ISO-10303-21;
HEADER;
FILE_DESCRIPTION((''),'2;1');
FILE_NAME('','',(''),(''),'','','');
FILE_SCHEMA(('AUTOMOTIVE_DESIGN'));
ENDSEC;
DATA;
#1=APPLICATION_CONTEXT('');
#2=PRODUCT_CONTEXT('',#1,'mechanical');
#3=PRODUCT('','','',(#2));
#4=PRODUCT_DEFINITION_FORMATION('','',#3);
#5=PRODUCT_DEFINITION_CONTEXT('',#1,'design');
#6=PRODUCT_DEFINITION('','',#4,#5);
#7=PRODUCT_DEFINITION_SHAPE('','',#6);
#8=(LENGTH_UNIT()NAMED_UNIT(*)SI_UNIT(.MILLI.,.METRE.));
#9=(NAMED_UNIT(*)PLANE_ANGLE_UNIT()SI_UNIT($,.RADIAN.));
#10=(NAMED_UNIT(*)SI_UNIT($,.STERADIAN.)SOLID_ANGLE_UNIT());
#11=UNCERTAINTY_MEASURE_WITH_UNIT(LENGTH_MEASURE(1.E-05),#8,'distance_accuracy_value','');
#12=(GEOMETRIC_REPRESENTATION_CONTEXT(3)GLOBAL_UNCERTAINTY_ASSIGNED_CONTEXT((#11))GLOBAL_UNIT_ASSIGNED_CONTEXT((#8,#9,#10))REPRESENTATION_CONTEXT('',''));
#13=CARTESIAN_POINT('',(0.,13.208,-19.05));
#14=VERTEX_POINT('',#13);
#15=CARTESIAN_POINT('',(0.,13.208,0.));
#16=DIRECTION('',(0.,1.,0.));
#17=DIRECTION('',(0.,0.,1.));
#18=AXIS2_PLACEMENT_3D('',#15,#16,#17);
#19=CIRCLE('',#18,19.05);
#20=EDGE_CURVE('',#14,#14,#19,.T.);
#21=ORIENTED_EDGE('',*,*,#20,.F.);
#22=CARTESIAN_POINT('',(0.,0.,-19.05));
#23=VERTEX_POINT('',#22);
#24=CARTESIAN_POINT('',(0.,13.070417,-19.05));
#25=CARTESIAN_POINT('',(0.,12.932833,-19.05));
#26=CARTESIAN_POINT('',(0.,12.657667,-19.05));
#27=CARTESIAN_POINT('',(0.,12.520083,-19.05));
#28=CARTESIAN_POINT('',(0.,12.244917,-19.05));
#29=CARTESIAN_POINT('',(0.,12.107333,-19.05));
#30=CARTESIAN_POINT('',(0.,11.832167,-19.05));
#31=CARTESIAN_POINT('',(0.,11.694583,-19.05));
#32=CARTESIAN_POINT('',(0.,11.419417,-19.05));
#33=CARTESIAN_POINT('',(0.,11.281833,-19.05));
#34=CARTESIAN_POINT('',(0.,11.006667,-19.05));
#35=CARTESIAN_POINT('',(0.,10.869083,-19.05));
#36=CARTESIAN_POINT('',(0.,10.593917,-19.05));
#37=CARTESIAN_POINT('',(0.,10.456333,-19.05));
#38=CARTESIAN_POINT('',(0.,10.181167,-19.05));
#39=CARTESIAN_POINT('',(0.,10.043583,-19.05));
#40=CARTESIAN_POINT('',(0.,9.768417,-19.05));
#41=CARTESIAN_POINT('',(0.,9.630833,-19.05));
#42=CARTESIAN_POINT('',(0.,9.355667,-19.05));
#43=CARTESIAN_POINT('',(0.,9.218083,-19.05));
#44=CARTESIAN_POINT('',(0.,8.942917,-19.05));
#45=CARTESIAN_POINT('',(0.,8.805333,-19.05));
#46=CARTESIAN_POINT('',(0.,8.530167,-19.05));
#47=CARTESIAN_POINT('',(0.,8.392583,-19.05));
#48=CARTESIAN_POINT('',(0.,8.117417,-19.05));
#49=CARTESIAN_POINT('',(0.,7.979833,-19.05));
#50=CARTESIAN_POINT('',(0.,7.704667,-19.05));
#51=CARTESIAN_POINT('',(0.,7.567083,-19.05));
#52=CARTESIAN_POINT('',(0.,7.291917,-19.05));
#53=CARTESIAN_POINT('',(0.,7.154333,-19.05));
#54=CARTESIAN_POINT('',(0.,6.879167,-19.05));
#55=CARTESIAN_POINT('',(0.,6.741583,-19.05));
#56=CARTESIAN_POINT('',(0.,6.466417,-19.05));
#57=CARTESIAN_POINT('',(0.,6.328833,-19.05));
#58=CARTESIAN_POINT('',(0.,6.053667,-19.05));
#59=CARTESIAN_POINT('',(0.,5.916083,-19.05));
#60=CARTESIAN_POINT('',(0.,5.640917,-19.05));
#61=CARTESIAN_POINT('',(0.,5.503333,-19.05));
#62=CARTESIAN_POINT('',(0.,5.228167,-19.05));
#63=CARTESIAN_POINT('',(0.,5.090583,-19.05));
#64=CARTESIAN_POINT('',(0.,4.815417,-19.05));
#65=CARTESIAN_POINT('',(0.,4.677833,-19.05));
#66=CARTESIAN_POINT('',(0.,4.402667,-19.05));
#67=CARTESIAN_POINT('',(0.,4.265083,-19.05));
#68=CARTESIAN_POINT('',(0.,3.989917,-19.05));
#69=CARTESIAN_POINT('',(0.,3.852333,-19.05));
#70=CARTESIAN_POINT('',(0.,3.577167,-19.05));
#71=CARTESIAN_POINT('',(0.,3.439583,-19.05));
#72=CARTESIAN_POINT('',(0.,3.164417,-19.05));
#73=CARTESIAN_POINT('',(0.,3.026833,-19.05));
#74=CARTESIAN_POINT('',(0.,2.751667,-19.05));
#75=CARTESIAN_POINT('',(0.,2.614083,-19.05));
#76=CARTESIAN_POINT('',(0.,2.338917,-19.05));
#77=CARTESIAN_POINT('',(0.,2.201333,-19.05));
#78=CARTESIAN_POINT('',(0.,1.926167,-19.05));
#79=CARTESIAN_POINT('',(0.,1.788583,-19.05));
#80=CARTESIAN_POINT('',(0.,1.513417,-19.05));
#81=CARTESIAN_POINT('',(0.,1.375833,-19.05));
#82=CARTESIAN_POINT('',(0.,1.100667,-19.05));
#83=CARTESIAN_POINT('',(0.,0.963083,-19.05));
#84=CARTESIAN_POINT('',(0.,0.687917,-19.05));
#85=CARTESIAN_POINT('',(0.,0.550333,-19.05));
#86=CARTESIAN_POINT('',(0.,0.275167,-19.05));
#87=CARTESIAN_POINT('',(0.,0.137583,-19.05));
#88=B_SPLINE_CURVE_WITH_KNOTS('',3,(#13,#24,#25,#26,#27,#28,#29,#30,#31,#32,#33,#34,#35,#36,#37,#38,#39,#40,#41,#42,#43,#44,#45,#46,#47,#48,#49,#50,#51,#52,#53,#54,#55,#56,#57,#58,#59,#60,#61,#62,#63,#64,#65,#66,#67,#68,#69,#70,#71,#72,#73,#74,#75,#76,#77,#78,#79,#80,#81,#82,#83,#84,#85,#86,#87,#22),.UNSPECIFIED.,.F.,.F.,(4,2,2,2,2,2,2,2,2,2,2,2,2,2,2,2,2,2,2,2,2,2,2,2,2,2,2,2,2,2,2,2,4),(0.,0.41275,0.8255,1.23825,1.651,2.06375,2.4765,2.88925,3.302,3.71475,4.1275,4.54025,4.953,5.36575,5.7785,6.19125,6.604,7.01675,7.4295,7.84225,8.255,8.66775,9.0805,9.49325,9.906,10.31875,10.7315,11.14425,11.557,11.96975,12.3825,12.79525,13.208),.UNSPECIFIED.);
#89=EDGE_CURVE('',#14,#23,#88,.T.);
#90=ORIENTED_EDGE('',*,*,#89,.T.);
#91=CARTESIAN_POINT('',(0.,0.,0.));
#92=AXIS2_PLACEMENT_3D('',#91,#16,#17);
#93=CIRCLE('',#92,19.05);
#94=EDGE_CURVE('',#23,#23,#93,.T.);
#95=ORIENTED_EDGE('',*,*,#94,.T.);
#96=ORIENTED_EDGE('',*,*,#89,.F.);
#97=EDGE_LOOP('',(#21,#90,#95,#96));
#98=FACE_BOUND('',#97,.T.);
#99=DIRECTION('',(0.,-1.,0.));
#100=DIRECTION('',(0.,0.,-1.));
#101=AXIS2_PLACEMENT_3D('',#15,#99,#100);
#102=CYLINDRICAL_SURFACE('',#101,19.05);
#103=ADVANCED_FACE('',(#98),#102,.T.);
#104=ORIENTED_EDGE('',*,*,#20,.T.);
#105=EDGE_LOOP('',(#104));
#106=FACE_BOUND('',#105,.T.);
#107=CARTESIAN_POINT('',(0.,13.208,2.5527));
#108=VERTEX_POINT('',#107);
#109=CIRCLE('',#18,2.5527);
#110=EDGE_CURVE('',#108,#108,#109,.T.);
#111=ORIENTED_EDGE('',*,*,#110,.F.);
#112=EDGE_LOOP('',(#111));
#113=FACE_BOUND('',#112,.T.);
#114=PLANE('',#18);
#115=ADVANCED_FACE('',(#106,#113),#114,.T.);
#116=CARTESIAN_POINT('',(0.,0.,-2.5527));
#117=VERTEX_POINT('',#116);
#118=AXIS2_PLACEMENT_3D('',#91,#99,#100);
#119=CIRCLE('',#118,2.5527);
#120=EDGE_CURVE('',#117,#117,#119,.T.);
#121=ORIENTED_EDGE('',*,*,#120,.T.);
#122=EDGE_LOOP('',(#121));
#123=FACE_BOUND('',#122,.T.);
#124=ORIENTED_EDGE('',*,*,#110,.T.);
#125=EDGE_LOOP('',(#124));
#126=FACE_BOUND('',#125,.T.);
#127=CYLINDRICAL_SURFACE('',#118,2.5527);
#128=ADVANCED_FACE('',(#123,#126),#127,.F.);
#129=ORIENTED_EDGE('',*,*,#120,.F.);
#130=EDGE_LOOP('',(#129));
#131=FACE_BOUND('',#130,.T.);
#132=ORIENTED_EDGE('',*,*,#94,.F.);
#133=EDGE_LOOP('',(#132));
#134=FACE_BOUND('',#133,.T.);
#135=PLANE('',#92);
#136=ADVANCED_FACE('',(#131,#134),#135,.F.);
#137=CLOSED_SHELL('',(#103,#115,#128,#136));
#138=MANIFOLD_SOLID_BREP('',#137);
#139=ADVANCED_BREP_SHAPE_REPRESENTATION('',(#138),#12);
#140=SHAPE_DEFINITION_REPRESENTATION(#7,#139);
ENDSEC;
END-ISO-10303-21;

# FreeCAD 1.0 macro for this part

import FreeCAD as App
import Part
import Sketcher
Q = App.Units.Quantity

doc = App.newDocument("Part")
body = doc.addObject("PartDesign::Body", "Body")

# Sketch on XZ plane
sketch1 = body.newObject("Sketcher::SketchObject", "Sketch")
sketch1.AttachmentSupport = (doc.getObject("XZ_Plane"), [""])
sketch1.MapMode = "FlatFace"
sketch1.addGeometry(Part.Circle(App.Vector(0, 0, 0), App.Vector(0, 0, 1), 19), False)
sketch1.addConstraint(Sketcher.Constraint("Coincident", 0, 3, -1, 1))
sketch1.addConstraint(Sketcher.Constraint("Diameter", 0, Q("1.5 in")))
pad1 = body.newObject("PartDesign::Pad", "Pad")
pad1.Profile = sketch1
pad1.Length = Q("0.52 in")
pad1.Reversed = True

# Sketch on XZ plane
sketch2 = body.newObject("Sketcher::SketchObject", "Sketch001")
sketch2.AttachmentSupport = (doc.getObject("XZ_Plane"), [""])
sketch2.MapMode = "FlatFace"
sketch2.addGeometry(Part.Circle(App.Vector(0, 0, 0), App.Vector(0, 0, 1), 2.6), False)
sketch2.addConstraint(Sketcher.Constraint("Coincident", 0, 3, -1, 1))
sketch2.addConstraint(Sketcher.Constraint("Diameter", 0, Q("0.201 in")))
doc.recompute()
hole = body.newObject("PartDesign::Hole", "Hole")
hole.Profile = sketch2
hole.ThreadType = "None"
hole.Diameter = Q("0.201 in")
hole.DepthType = "Dimension"
hole.Depth = Q("0.65 in")
hole.DrillPoint = "Angled"
hole.DrillPointAngle = 118

doc.recompute()
